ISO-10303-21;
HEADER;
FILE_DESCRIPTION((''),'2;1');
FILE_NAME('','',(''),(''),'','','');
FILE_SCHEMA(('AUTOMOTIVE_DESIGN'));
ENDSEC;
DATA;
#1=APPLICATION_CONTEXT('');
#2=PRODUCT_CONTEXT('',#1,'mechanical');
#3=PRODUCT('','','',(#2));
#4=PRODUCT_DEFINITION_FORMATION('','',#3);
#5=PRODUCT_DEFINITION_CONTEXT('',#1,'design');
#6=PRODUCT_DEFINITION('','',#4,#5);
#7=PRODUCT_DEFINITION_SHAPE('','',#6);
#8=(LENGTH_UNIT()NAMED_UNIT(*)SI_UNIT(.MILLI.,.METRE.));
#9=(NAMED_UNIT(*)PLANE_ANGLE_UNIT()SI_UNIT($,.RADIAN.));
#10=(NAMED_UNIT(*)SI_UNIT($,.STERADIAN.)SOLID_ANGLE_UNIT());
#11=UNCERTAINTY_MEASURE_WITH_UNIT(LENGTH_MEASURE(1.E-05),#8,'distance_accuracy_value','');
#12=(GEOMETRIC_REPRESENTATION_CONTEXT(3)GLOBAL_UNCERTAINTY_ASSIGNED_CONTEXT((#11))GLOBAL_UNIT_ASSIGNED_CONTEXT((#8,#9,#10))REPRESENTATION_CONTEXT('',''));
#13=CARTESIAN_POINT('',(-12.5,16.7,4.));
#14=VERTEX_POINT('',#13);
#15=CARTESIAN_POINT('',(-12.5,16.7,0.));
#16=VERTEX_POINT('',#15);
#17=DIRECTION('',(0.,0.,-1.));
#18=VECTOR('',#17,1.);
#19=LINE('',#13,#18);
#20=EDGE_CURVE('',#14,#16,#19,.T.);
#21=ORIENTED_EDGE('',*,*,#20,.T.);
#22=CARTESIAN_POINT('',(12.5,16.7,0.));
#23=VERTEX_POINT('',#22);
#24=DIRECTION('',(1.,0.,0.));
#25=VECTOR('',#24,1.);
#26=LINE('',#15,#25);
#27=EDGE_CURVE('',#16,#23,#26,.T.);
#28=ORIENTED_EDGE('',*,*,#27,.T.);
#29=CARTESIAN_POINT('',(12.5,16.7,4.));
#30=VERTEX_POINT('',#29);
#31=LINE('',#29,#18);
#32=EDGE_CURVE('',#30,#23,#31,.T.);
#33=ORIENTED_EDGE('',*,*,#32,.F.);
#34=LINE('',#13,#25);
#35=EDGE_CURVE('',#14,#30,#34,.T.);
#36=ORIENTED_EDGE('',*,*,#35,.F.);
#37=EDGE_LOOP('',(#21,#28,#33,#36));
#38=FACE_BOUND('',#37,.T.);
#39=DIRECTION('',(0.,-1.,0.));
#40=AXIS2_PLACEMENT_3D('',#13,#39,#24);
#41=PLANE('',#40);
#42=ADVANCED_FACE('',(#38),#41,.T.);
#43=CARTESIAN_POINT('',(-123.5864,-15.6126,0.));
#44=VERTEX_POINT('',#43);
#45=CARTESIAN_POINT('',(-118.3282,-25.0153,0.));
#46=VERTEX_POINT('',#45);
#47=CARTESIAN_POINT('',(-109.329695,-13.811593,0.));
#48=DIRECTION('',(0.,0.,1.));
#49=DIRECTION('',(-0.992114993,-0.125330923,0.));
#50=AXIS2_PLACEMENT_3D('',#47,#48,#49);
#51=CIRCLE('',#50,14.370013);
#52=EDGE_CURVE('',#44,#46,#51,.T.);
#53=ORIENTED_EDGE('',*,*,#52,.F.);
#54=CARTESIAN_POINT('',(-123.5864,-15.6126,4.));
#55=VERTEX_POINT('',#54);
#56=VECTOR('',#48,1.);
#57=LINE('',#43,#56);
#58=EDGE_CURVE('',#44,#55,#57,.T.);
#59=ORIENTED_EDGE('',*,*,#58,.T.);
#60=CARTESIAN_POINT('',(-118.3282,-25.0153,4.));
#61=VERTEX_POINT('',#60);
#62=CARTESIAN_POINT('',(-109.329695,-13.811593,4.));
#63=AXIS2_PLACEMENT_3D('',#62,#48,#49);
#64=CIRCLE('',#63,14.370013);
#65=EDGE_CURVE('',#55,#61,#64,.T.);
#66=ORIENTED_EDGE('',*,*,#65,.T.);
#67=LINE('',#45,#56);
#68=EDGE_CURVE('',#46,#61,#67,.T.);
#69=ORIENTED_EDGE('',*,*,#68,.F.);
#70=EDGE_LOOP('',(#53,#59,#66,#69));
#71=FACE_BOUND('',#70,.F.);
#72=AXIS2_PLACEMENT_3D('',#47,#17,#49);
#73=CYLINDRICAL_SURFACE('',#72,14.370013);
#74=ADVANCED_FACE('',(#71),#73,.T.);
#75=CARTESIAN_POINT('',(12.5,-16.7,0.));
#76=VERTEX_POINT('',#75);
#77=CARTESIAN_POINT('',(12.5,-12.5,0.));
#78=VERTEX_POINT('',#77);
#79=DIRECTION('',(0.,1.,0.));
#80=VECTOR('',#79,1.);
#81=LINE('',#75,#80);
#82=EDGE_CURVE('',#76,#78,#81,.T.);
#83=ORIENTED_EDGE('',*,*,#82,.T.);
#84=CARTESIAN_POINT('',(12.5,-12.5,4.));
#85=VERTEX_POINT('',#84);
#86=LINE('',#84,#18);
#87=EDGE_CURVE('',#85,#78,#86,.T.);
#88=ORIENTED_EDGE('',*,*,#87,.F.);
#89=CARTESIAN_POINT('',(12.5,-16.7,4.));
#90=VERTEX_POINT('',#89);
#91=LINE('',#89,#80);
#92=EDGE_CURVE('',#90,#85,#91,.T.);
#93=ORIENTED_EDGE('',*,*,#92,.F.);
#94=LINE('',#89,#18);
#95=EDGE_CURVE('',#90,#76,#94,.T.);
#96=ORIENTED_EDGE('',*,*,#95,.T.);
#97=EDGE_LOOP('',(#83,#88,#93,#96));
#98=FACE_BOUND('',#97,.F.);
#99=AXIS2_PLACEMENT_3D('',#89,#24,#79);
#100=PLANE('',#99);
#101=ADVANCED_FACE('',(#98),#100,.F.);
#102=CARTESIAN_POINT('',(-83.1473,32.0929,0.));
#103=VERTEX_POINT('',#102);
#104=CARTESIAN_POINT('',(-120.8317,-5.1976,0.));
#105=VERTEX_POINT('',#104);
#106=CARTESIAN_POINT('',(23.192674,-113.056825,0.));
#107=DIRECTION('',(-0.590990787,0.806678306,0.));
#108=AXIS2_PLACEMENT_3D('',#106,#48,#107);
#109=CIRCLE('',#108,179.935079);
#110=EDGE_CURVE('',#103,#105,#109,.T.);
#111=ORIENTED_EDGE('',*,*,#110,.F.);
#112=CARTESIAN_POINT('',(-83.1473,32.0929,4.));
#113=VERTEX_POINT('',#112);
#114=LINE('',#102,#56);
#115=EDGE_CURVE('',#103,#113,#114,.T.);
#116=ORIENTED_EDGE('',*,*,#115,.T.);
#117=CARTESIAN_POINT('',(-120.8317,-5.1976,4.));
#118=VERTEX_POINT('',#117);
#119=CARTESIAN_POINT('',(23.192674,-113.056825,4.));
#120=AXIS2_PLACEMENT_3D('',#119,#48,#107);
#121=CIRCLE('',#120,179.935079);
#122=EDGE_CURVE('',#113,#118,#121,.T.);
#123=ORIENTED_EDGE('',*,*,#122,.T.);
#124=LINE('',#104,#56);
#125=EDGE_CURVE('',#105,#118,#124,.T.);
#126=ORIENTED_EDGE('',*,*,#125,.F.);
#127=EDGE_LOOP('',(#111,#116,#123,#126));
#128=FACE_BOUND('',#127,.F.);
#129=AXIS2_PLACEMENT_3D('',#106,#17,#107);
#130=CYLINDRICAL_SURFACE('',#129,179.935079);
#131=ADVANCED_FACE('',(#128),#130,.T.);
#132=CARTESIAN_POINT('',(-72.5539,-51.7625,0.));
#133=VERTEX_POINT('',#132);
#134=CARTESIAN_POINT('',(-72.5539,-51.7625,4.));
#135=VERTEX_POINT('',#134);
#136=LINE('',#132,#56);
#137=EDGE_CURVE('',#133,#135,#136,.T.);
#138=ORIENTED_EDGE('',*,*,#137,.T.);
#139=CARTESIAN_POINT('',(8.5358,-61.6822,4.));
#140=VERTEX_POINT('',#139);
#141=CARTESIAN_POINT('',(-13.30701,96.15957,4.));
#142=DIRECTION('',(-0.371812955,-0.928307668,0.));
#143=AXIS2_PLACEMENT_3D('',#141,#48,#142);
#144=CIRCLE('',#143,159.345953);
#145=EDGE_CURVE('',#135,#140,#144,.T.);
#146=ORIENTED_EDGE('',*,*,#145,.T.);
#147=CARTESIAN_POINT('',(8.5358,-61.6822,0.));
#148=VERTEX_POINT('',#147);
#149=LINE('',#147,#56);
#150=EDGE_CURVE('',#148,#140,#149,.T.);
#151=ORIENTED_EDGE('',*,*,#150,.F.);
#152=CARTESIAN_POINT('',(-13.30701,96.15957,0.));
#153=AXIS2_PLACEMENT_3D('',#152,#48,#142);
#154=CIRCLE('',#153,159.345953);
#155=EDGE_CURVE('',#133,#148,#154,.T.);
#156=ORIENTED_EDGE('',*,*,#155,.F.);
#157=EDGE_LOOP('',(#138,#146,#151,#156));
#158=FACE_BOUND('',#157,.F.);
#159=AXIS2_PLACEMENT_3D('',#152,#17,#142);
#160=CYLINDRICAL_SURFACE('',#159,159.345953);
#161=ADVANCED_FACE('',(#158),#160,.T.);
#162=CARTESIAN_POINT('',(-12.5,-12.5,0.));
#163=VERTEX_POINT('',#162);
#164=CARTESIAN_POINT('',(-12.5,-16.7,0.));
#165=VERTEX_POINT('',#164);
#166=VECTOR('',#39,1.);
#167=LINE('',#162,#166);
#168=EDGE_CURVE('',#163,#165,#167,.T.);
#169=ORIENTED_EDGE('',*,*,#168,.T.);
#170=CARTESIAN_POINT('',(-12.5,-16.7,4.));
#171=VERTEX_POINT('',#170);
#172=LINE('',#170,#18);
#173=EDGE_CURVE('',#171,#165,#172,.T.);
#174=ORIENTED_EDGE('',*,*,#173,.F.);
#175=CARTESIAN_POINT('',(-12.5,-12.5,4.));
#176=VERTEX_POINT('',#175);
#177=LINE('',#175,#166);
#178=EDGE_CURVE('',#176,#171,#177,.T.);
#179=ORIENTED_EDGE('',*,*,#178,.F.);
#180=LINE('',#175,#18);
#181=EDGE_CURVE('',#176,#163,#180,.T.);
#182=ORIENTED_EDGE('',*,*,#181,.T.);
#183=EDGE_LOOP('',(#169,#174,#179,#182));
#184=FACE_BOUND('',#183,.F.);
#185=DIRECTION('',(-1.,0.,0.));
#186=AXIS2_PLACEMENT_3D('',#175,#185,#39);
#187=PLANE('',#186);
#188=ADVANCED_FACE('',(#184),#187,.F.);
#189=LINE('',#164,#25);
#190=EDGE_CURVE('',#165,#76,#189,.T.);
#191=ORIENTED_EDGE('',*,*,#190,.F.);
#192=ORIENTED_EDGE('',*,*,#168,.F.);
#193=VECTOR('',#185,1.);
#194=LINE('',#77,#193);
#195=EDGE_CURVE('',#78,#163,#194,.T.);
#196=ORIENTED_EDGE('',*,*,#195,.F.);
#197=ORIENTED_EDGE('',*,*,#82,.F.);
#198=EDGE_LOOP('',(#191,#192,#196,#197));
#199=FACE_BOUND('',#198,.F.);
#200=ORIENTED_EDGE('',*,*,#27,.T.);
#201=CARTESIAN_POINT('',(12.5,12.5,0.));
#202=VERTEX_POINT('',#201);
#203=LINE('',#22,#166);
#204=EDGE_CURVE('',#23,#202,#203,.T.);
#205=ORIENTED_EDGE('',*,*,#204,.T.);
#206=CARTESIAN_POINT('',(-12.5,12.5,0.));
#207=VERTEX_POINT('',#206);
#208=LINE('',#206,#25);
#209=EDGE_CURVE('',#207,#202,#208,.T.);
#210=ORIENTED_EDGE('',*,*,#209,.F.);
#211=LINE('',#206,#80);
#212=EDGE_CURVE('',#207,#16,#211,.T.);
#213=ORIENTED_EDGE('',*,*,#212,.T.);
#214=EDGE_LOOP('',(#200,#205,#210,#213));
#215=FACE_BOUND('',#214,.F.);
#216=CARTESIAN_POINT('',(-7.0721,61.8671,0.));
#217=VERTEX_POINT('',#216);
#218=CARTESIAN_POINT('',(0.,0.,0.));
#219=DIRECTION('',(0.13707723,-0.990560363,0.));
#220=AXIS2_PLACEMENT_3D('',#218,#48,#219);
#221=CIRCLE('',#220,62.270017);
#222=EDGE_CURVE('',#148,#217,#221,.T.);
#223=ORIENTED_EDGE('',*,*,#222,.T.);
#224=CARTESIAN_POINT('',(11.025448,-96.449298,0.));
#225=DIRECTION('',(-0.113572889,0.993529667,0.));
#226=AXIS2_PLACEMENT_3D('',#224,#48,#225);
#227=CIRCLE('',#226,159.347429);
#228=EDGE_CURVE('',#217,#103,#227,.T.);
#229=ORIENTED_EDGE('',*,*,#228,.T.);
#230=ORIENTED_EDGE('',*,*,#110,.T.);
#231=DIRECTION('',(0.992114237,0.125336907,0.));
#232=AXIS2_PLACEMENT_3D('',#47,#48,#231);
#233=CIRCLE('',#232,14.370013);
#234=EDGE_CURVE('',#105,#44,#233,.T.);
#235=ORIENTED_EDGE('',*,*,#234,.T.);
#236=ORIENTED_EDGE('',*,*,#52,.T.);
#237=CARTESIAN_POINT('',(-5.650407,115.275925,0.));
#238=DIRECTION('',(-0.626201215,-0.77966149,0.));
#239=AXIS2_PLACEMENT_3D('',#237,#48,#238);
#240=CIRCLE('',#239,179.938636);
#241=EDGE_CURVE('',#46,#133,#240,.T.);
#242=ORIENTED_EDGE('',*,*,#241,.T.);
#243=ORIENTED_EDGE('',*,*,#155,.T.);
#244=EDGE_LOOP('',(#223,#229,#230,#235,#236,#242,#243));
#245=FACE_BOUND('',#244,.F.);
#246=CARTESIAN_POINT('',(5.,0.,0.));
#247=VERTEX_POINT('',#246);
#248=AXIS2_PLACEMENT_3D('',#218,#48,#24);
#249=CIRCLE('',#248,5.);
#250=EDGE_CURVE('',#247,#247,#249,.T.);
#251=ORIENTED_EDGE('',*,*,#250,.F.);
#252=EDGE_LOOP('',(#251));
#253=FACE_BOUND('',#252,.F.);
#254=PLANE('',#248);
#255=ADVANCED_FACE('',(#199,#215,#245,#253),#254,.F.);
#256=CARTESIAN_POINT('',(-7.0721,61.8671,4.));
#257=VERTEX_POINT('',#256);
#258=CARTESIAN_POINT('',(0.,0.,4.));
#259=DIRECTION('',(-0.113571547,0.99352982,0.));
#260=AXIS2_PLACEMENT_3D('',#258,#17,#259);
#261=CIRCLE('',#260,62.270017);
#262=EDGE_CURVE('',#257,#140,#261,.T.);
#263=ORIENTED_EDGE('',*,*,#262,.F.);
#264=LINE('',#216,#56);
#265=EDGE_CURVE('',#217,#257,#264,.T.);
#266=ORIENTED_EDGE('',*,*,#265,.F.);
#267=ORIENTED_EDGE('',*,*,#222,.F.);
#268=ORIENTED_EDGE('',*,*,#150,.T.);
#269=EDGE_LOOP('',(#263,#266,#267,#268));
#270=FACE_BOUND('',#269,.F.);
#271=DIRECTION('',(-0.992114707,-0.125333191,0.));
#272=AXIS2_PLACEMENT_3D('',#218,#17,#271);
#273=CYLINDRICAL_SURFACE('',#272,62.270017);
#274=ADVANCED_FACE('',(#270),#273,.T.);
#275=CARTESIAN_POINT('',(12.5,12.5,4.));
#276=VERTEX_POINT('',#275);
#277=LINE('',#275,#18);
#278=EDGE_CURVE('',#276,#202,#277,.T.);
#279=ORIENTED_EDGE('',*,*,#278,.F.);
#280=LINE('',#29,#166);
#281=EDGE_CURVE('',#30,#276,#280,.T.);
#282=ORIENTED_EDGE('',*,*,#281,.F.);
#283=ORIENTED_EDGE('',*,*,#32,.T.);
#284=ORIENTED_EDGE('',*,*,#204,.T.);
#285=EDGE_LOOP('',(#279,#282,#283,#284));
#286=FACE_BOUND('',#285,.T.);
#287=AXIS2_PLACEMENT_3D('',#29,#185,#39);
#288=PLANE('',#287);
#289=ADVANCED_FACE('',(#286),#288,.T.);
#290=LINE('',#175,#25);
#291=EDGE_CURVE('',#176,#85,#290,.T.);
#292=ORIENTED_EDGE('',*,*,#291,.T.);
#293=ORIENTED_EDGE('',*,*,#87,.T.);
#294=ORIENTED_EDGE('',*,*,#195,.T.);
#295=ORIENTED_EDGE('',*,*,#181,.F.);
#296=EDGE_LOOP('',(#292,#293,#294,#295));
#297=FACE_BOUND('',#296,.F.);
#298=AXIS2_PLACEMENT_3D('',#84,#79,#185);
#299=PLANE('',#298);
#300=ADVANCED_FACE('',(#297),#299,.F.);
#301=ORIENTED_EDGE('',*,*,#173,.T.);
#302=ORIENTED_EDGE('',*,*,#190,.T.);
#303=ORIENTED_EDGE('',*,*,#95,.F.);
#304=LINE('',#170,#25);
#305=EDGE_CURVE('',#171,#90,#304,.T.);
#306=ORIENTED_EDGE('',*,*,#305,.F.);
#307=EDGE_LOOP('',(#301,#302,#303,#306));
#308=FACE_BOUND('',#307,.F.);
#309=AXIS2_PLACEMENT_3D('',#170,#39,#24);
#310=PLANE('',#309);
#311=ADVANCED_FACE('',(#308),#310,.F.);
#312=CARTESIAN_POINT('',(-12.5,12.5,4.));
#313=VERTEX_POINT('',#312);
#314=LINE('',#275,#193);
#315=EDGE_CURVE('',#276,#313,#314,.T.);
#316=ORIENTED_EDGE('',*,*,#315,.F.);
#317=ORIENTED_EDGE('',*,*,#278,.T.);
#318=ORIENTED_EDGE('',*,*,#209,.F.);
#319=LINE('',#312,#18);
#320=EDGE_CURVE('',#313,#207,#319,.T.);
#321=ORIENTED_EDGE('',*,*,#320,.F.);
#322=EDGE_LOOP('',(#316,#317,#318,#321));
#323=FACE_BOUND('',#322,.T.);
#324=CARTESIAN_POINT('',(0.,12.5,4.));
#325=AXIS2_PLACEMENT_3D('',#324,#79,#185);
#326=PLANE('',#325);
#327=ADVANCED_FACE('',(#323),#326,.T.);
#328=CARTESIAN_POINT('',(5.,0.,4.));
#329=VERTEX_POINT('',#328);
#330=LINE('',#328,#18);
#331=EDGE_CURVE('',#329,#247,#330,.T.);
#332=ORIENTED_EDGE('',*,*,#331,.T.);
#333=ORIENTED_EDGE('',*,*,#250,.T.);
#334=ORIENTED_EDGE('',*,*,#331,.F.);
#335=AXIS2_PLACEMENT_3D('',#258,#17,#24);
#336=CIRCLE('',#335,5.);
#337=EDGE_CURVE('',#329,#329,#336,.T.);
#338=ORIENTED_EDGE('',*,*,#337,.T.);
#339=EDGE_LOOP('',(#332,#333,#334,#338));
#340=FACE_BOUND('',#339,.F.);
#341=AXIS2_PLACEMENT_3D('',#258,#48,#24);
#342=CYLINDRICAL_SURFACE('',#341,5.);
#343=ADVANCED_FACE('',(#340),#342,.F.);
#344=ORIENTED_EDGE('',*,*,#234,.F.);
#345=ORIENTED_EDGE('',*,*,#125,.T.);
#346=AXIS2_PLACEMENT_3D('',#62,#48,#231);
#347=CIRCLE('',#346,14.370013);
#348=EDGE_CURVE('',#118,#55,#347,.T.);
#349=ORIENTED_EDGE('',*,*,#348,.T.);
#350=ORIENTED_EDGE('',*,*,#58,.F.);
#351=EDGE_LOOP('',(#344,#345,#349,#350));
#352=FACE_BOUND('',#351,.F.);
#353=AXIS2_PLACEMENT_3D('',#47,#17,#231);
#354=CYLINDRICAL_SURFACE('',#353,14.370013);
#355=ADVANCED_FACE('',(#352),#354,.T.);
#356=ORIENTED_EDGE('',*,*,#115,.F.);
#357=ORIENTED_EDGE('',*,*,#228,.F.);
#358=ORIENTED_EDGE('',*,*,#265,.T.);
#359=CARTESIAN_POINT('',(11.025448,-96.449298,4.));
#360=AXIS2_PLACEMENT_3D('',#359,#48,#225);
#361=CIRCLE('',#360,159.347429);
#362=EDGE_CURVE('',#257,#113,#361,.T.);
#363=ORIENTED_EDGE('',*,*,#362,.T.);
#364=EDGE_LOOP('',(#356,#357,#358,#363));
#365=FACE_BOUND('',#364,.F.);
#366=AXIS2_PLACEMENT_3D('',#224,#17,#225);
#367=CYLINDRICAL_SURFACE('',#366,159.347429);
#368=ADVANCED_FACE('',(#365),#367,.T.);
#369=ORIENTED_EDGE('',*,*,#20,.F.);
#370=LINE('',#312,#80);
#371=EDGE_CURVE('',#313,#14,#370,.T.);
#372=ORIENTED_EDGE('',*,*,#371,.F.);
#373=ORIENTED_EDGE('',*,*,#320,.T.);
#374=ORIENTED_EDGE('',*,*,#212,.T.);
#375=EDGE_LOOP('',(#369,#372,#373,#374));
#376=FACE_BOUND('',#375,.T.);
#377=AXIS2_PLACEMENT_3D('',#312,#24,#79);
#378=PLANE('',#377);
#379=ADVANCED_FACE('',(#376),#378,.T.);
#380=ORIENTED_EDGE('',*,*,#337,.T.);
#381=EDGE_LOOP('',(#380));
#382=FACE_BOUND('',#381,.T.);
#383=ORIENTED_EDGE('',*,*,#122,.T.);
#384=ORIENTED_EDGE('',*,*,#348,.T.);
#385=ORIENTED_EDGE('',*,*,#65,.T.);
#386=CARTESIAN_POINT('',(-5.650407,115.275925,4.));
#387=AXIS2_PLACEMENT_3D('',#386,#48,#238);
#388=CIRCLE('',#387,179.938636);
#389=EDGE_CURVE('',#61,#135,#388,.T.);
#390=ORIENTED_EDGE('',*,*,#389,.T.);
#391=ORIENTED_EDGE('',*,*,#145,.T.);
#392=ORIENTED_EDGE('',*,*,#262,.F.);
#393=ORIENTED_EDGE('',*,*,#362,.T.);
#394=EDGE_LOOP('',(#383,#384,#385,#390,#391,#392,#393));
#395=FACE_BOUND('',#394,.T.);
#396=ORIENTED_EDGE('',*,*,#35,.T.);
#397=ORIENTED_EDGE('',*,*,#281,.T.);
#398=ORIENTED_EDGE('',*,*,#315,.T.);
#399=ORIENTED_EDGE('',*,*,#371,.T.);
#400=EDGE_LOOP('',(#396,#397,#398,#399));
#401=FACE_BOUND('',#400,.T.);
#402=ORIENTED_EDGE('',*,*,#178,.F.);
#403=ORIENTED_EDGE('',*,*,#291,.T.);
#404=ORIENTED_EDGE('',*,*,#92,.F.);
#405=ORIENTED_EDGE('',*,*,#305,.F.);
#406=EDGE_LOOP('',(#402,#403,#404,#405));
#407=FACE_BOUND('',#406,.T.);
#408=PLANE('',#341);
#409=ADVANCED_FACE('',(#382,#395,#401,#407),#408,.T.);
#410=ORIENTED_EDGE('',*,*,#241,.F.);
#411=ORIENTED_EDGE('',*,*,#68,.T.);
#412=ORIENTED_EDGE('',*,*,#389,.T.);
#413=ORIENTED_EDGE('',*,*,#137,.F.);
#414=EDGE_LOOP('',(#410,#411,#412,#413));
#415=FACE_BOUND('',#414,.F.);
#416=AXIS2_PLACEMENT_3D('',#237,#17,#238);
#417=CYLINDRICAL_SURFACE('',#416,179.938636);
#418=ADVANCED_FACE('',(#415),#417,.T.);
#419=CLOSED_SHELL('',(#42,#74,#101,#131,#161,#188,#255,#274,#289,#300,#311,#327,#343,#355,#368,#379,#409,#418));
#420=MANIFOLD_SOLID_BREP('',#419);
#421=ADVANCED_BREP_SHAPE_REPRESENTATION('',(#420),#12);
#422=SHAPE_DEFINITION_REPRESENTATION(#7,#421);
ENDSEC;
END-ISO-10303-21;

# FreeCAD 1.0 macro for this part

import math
import FreeCAD as App
import Part
import Sketcher

doc = App.newDocument("Part")
body = doc.addObject("PartDesign::Body", "Body")

# Sketch on XY plane
sketch1 = body.newObject("Sketcher::SketchObject", "Sketch")
sketch1.AttachmentSupport = (doc.getObject("XY_Plane"), [""])
sketch1.MapMode = "FlatFace"
sketch1.addGeometry(Part.ArcOfCircle(Part.Circle(App.Vector(0, 0, 0), App.Vector(0, 0, 1), 62), math.radians(-82), math.radians(97)), False)
sketch1.addGeometry(Part.ArcOfCircle(Part.Circle(App.Vector(11, -96, 0), App.Vector(0, 0, 1), 159), math.radians(97), math.radians(126)), False)
sketch1.addGeometry(Part.ArcOfCircle(Part.Circle(App.Vector(23, -113, 0), App.Vector(0, 0, 1), 180), math.radians(126.23), math.radians(143.17)), False)
sketch1.addGeometry(Part.ArcOfCircle(Part.Circle(App.Vector(-109, -14, 0), App.Vector(0, 0, 1), 14), math.radians(143), math.radians(187)), False)
sketch1.addGeometry(Part.ArcOfCircle(Part.Circle(App.Vector(-109, -14, 0), App.Vector(0, 0, 1), 14), math.radians(-173), math.radians(-129)), False)
sketch1.addGeometry(Part.ArcOfCircle(Part.Circle(App.Vector(-6, 115, 0), App.Vector(0, 0, 1), 180), math.radians(-128.77), math.radians(-111.83)), False)
sketch1.addGeometry(Part.ArcOfCircle(Part.Circle(App.Vector(-13, 96, 0), App.Vector(0, 0, 1), 159), math.radians(-112), math.radians(-82)), False)
sketch1.addConstraint(Sketcher.Constraint("Tangent", 0, 2, 1, 1))
sketch1.addConstraint(Sketcher.Constraint("Tangent", 1, 2, 2, 1))
sketch1.addConstraint(Sketcher.Constraint("Tangent", 2, 2, 3, 1))
sketch1.addConstraint(Sketcher.Constraint("Tangent", 3, 2, 4, 1))
sketch1.addConstraint(Sketcher.Constraint("Tangent", 4, 2, 5, 1))
sketch1.addConstraint(Sketcher.Constraint("Tangent", 5, 2, 6, 1))
sketch1.addConstraint(Sketcher.Constraint("Tangent", 6, 2, 0, 1))
sketch1.addConstraint(Sketcher.Constraint("Coincident", 0, 3, -1, 1))
sketch1.addConstraint(Sketcher.Constraint("Equal", 3, 4))
sketch1.addConstraint(Sketcher.Constraint("Radius", 0, 62.27))
sketch1.addConstraint(Sketcher.Constraint("Radius", 3, 14.37))
sketch1.addConstraint(Sketcher.Constraint("Radius", 2, 179.935))
sketch1.addConstraint(Sketcher.Constraint("Radius", 1, 159.3474))
sketch1.addConstraint(Sketcher.Constraint("Radius", 5, 179.9381))
sketch1.addConstraint(Sketcher.Constraint("Radius", 6, 159.3464))
sketch1.addConstraint(Sketcher.Constraint("DistanceY", -1, 1, 6, 3, 96.16))
sketch1.addConstraint(Sketcher.Constraint("DistanceY", 5, 2, 3, 2, 36.15))
sketch1.addConstraint(Sketcher.Constraint("DistanceX", 0, 2, -1, 1, 7.072))
sketch1.addConstraint(Sketcher.Constraint("DistanceY", -1, 1, 1, 2, 32.093))
sketch1.addConstraint(Sketcher.Constraint("DistanceX", 5, 2, -1, 1, 72.554))
pad1 = body.newObject("PartDesign::Pad", "Pad")
pad1.Profile = sketch1
pad1.Length = 4

# Sketch on XY plane
sketch2 = body.newObject("Sketcher::SketchObject", "Sketch001")
sketch2.AttachmentSupport = (doc.getObject("XY_Plane"), [""])
sketch2.MapMode = "FlatFace"
sketch2.AttachmentOffset = App.Placement(App.Vector(0, 0, 4), App.Rotation())
sketch2.addGeometry(Part.Circle(App.Vector(0, 0, 0), App.Vector(0, 0, 1), 5), False)
sketch2.addGeometry(Part.LineSegment(App.Vector(-12.5, 12.5, 0), App.Vector(12.5, 12.5, 0)), False)
sketch2.addGeometry(Part.LineSegment(App.Vector(12.5, 12.5, 0), App.Vector(12.5, 16.7, 0)), False)
sketch2.addGeometry(Part.LineSegment(App.Vector(12.5, 16.7, 0), App.Vector(-12.5, 16.7, 0)), False)
sketch2.addGeometry(Part.LineSegment(App.Vector(-12.5, 16.7, 0), App.Vector(-12.5, 12.5, 0)), False)
sketch2.addGeometry(Part.LineSegment(App.Vector(12.5, -12.5, 0), App.Vector(-12.5, -12.5, 0)), False)
sketch2.addGeometry(Part.LineSegment(App.Vector(-12.5, -12.5, 0), App.Vector(-12.5, -16.7, 0)), False)
sketch2.addGeometry(Part.LineSegment(App.Vector(-12.5, -16.7, 0), App.Vector(12.5, -16.7, 0)), False)
sketch2.addGeometry(Part.LineSegment(App.Vector(12.5, -16.7, 0), App.Vector(12.5, -12.5, 0)), False)
sketch2.addConstraint(Sketcher.Constraint("Coincident", 1, 2, 2, 1))
sketch2.addConstraint(Sketcher.Constraint("Coincident", 2, 2, 3, 1))
sketch2.addConstraint(Sketcher.Constraint("Coincident", 3, 2, 4, 1))
sketch2.addConstraint(Sketcher.Constraint("Coincident", 4, 2, 1, 1))
sketch2.addConstraint(Sketcher.Constraint("Coincident", 5, 2, 6, 1))
sketch2.addConstraint(Sketcher.Constraint("Coincident", 6, 2, 7, 1))
sketch2.addConstraint(Sketcher.Constraint("Coincident", 7, 2, 8, 1))
sketch2.addConstraint(Sketcher.Constraint("Coincident", 8, 2, 5, 1))
sketch2.addConstraint(Sketcher.Constraint("Horizontal", 1))
sketch2.addConstraint(Sketcher.Constraint("Vertical", 2))
sketch2.addConstraint(Sketcher.Constraint("Horizontal", 3))
sketch2.addConstraint(Sketcher.Constraint("Vertical", 4))
sketch2.addConstraint(Sketcher.Constraint("Horizontal", 5))
sketch2.addConstraint(Sketcher.Constraint("Vertical", 6))
sketch2.addConstraint(Sketcher.Constraint("Horizontal", 7))
sketch2.addConstraint(Sketcher.Constraint("Vertical", 8))
sketch2.addConstraint(Sketcher.Constraint("Coincident", 0, 3, -1, 1))
sketch2.addConstraint(Sketcher.Constraint("Symmetric", 1, 2, 5, 2, -1, 1))
sketch2.addConstraint(Sketcher.Constraint("Symmetric", 3, 2, 7, 2, -1, 1))
sketch2.addConstraint(Sketcher.Constraint("Vertical", 4, 2, 5, 2))
sketch2.addConstraint(Sketcher.Constraint("Diameter", 0, 10.0))
sketch2.addConstraint(Sketcher.Constraint("DistanceX", 1, 1, 1, 2, 25.0))
sketch2.addConstraint(Sketcher.Constraint("DistanceY", 2, 1, 2, 2, 4.2))
sketch2.addConstraint(Sketcher.Constraint("DistanceY", 5, 2, 4, 2, 25.0))
pocket1 = body.newObject("PartDesign::Pocket", "Pocket")
pocket1.Profile = sketch2
pocket1.Length = 4

doc.recompute()
